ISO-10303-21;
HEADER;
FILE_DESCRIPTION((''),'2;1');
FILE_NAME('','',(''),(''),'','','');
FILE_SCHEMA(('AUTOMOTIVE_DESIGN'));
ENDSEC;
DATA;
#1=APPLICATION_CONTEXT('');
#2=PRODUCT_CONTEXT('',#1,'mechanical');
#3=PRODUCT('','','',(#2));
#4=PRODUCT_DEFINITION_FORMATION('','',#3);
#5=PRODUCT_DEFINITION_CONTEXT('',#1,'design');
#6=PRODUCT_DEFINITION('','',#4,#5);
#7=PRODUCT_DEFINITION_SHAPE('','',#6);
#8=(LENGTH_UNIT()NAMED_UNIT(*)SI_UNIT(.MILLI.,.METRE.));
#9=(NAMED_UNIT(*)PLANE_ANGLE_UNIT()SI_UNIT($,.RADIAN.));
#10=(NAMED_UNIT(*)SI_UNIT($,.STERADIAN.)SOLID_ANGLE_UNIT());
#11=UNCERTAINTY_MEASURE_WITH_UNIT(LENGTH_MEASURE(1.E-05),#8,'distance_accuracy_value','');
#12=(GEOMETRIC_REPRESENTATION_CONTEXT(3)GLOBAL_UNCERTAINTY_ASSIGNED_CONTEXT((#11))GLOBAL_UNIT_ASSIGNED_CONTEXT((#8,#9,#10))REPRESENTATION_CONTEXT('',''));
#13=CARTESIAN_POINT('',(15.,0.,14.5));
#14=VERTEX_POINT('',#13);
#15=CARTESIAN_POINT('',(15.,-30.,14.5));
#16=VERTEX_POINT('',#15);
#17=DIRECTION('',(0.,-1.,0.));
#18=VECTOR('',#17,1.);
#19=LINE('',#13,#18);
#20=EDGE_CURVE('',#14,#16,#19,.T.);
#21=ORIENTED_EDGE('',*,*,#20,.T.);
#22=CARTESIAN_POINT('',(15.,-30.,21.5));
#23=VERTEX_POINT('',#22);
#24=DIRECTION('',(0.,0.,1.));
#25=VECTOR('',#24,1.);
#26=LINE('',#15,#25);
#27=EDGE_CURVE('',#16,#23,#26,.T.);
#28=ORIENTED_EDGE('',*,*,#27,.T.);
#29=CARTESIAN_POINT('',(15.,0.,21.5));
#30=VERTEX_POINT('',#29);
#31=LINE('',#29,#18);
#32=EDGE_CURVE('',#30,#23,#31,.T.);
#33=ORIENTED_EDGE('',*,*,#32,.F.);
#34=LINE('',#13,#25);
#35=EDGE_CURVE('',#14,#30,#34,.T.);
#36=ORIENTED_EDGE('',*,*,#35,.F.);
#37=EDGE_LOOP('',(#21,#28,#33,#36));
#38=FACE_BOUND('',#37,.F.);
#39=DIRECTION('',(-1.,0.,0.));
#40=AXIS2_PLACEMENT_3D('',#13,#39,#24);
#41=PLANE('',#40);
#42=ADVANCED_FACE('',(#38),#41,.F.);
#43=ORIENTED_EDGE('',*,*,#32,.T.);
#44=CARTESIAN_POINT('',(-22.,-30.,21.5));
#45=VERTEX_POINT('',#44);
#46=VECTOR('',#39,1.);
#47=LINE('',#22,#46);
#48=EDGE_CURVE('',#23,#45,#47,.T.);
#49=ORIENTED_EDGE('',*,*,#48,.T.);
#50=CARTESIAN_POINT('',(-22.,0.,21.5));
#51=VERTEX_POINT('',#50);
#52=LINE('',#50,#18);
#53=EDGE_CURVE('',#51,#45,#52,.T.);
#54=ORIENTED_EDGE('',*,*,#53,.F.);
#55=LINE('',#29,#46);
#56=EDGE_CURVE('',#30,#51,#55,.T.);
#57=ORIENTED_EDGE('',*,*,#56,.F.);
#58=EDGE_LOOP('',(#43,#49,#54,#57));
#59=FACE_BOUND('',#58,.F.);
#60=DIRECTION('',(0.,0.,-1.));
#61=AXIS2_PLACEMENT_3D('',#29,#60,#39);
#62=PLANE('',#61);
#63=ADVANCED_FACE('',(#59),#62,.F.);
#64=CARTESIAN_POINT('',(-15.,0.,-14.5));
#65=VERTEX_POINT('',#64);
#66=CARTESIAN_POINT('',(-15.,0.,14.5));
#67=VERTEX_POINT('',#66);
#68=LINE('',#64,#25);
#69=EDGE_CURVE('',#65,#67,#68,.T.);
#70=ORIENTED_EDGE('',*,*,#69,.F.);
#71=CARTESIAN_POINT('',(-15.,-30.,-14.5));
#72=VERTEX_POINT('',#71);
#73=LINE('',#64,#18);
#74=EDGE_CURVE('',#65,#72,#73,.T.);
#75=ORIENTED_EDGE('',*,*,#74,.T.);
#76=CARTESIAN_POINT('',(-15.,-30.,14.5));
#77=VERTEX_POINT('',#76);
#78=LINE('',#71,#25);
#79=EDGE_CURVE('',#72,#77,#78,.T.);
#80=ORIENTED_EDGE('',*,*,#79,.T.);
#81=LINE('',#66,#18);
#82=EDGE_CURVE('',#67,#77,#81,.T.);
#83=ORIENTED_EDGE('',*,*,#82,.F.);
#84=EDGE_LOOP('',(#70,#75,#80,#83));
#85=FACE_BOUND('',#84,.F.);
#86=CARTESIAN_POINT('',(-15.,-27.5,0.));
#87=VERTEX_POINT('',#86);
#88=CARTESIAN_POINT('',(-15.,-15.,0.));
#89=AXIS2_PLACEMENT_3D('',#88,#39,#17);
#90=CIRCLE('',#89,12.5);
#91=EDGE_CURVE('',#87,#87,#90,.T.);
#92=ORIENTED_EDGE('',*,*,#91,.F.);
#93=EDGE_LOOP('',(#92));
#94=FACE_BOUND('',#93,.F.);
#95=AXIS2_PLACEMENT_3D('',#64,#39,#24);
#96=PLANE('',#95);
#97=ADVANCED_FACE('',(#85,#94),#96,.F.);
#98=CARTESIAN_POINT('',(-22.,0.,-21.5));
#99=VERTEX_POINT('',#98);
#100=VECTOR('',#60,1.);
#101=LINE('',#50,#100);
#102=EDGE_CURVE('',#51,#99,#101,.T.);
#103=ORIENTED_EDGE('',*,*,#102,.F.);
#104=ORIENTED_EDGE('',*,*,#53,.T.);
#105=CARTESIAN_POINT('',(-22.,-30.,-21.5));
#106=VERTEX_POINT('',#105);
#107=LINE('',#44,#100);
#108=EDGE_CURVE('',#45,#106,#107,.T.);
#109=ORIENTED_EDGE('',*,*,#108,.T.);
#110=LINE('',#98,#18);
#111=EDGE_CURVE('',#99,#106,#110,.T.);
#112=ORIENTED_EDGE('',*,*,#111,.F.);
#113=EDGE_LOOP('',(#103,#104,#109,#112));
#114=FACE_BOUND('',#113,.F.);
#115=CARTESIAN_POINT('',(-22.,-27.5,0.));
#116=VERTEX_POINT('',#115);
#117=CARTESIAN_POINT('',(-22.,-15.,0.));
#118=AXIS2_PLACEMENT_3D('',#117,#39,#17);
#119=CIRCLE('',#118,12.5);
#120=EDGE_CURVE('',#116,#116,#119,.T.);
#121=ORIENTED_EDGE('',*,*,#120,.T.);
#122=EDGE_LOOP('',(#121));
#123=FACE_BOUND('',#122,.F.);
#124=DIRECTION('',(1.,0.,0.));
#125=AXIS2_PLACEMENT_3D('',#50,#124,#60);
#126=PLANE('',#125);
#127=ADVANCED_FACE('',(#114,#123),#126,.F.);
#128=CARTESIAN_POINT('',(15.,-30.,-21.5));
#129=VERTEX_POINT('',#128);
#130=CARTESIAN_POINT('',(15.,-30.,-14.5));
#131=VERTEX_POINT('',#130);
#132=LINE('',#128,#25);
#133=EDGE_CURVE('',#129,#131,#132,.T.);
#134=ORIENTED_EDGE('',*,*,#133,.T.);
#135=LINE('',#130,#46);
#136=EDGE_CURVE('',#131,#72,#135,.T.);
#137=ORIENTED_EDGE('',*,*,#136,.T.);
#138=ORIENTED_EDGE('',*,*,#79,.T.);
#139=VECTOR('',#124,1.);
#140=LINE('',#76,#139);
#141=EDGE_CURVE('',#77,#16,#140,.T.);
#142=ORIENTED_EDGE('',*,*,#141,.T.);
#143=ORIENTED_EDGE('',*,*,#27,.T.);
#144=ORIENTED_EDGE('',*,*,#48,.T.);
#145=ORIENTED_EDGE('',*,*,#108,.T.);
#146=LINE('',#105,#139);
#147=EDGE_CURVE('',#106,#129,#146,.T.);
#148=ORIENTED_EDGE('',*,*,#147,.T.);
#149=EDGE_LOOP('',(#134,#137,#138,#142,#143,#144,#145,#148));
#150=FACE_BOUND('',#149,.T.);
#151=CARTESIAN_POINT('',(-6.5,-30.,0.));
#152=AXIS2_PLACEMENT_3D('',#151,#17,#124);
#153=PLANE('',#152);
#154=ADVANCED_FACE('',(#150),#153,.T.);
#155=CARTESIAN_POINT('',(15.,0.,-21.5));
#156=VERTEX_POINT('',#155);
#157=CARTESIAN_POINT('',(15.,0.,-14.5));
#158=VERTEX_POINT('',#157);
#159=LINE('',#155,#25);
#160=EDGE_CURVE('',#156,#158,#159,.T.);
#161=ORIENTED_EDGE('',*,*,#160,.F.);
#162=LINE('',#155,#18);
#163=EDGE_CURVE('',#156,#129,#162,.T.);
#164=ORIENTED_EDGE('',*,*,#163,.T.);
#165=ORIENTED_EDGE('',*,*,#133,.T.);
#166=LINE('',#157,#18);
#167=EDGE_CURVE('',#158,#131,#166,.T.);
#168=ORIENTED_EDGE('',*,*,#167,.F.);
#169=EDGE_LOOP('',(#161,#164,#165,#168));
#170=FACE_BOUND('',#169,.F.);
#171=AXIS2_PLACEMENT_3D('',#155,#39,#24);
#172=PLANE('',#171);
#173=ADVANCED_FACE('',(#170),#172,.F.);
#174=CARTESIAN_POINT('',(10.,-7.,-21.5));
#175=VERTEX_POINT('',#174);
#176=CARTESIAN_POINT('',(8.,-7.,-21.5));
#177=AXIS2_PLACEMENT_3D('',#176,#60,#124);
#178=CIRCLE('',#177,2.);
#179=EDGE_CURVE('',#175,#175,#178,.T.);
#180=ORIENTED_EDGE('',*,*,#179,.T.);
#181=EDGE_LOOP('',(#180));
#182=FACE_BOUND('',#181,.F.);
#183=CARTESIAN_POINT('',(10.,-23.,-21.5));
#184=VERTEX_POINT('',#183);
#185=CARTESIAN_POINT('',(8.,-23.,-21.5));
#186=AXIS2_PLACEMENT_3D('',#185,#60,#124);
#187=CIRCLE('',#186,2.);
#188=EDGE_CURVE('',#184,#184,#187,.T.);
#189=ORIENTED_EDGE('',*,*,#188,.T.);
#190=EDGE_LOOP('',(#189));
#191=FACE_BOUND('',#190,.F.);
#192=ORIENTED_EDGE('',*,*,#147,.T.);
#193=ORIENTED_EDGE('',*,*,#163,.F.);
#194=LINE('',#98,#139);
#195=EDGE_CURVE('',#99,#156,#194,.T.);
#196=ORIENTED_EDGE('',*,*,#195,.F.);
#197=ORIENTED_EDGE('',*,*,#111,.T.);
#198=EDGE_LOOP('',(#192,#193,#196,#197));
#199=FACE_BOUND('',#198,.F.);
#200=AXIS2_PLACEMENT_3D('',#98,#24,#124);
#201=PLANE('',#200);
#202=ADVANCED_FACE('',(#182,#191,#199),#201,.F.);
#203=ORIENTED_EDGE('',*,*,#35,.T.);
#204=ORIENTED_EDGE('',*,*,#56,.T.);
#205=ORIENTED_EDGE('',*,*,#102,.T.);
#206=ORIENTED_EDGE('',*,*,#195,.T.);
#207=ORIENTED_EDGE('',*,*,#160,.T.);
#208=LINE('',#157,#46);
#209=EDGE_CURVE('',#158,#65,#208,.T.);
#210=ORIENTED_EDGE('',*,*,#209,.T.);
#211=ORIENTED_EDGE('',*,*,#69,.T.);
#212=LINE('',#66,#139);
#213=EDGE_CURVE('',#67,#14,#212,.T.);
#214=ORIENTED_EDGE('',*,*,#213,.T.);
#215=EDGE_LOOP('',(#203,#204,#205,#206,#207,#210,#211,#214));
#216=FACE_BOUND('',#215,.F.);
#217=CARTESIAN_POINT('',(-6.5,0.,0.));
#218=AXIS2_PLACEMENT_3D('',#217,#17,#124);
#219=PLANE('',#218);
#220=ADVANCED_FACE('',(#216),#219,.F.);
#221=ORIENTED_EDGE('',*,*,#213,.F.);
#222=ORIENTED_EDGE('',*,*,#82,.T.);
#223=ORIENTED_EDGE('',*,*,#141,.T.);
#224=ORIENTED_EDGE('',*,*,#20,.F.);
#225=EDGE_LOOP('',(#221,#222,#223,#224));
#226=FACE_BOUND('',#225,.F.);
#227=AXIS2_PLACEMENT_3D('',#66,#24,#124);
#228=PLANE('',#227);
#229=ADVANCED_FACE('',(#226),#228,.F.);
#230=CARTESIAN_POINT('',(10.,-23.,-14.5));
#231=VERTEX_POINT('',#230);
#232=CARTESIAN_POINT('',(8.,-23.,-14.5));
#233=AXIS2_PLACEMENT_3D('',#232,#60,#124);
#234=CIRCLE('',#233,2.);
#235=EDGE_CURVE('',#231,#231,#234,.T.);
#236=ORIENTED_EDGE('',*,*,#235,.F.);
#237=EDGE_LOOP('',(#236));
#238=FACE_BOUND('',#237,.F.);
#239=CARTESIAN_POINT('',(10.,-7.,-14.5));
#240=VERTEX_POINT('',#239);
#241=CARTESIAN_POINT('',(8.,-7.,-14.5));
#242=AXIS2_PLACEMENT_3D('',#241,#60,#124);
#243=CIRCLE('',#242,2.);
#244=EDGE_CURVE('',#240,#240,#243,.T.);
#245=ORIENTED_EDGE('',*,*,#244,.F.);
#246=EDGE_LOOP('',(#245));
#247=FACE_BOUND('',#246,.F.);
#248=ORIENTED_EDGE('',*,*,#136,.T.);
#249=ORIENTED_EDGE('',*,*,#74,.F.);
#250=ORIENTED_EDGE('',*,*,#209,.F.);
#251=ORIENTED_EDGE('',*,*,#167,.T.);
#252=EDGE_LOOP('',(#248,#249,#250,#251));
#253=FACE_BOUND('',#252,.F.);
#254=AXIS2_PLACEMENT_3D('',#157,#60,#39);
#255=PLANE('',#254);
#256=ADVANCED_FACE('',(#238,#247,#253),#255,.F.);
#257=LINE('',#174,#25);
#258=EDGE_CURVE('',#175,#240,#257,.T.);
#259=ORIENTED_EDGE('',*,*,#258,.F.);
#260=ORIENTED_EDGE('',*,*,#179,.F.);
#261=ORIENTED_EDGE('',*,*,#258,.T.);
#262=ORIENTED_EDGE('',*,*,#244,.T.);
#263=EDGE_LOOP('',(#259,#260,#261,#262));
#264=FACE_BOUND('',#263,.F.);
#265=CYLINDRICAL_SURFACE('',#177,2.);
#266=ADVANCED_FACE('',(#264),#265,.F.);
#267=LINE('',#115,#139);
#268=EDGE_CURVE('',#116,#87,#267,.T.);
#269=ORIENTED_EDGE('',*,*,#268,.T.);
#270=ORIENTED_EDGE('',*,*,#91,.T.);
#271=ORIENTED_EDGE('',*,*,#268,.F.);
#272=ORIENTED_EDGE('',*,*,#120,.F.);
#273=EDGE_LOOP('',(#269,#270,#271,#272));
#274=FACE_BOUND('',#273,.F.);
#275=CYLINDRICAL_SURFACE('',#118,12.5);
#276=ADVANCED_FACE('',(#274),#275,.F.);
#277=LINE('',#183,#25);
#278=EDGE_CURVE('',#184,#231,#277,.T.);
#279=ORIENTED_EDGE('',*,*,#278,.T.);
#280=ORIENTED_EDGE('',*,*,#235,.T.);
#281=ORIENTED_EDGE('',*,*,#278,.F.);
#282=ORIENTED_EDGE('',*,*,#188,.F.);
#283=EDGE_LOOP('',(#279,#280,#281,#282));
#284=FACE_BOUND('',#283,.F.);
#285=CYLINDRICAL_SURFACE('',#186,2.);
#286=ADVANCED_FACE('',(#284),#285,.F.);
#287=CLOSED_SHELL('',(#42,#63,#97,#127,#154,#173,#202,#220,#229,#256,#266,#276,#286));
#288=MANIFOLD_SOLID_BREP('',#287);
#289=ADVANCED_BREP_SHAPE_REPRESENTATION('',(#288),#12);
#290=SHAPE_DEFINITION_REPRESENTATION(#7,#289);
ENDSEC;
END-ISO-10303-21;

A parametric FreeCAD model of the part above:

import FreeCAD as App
import Part
import Sketcher
Q = App.Units.Quantity


def add_polygon(sketch, points):
    """Adds a closed chain of lines whose ends are joined by coincident constraints."""
    first, n = sketch.GeometryCount, len(points)
    for a, b in zip(points, points[1:] + points[:1]):
        sketch.addGeometry(Part.LineSegment(App.Vector(*a, 0), App.Vector(*b, 0)), False)
    for i in range(n):
        sketch.addConstraint(Sketcher.Constraint("Coincident", first + i, 2, first + (i + 1) % n, 1))

doc = App.newDocument("Part")
body = doc.addObject("PartDesign::Body", "Body")

sketch1 = body.newObject("Sketcher::SketchObject", "Sketch")
sketch1.AttachmentSupport = (doc.getObject("XZ_Plane"), [""])
sketch1.MapMode = "FlatFace"
add_polygon(sketch1, [(15, -22), (15, -14), (-15, -14), (-15, 14), (15, 14), (15, 22), (-22, 22), (-22, -22)])
sketch1.addConstraint(Sketcher.Constraint("Vertical", 0))
sketch1.addConstraint(Sketcher.Constraint("Horizontal", 1))
sketch1.addConstraint(Sketcher.Constraint("Vertical", 2))
sketch1.addConstraint(Sketcher.Constraint("Horizontal", 3))
sketch1.addConstraint(Sketcher.Constraint("Vertical", 4))
sketch1.addConstraint(Sketcher.Constraint("Horizontal", 5))
sketch1.addConstraint(Sketcher.Constraint("Vertical", 6))
sketch1.addConstraint(Sketcher.Constraint("Horizontal", 7))
sketch1.addConstraint(Sketcher.Constraint("Symmetric", 0, 2, 2, 2, -1, 1))
sketch1.addConstraint(Sketcher.Constraint("Symmetric", 4, 2, 7, 2, -1))
sketch1.addConstraint(Sketcher.Constraint("DistanceX", 1, 2, 1, 1, Q("30 mm")))
sketch1.addConstraint(Sketcher.Constraint("DistanceX", 5, 2, 5, 1, Q("37 mm")))
sketch1.addConstraint(Sketcher.Constraint("DistanceY", 0, 1, 0, 2, Q("7 mm")))
sketch1.addConstraint(Sketcher.Constraint("DistanceY", 2, 1, 2, 2, Q("29 mm")))
pad1 = body.newObject("PartDesign::Pad", "Pad")
pad1.Profile = sketch1
pad1.Length = 30

sketch2 = body.newObject("Sketcher::SketchObject", "Sketch001")
sketch2.AttachmentSupport = (doc.getObject("XY_Plane"), [""])
sketch2.MapMode = "FlatFace"
sketch2.AttachmentOffset = App.Placement(App.Vector(0, 0, -21.5), App.Rotation())
sketch2.addGeometry(Part.Circle(App.Vector(8, -23, 0), App.Vector(0, 0, 1), 2), False)
sketch2.addGeometry(Part.Circle(App.Vector(8, -7, 0), App.Vector(0, 0, 1), 2), False)
sketch2.addConstraint(Sketcher.Constraint("Equal", 0, 1))
sketch2.addConstraint(Sketcher.Constraint("Vertical", 0, 3, 1, 3))
sketch2.addConstraint(Sketcher.Constraint("Diameter", 0, Q("4 mm")))
sketch2.addConstraint(Sketcher.Constraint("DistanceX", -1, 1, 0, 3, Q("8 mm")))
sketch2.addConstraint(Sketcher.Constraint("DistanceY", 0, 3, -1, 1, Q("23 mm")))
sketch2.addConstraint(Sketcher.Constraint("DistanceY", 1, 3, -1, 1, Q("7 mm")))
pocket1 = body.newObject("PartDesign::Pocket", "Pocket")
pocket1.Profile = sketch2
pocket1.Length = 7
pocket1.Reversed = True

sketch3 = body.newObject("Sketcher::SketchObject", "Sketch002")
sketch3.AttachmentSupport = (doc.getObject("YZ_Plane"), [""])
sketch3.MapMode = "FlatFace"
sketch3.AttachmentOffset = App.Placement(App.Vector(0, 0, -22), App.Rotation())
sketch3.addGeometry(Part.Circle(App.Vector(-15, 0, 0), App.Vector(0, 0, 1), 12), False)
sketch3.addConstraint(Sketcher.Constraint("PointOnObject", 0, 3, -1))
sketch3.addConstraint(Sketcher.Constraint("Diameter", 0, Q("25 mm")))
sketch3.addConstraint(Sketcher.Constraint("DistanceX", 0, 3, -1, 1, Q("15 mm")))
pocket2 = body.newObject("PartDesign::Pocket", "Pocket001")
pocket2.Profile = sketch3
pocket2.Type = "ThroughAll"
pocket2.Reversed = True

doc.recompute()
